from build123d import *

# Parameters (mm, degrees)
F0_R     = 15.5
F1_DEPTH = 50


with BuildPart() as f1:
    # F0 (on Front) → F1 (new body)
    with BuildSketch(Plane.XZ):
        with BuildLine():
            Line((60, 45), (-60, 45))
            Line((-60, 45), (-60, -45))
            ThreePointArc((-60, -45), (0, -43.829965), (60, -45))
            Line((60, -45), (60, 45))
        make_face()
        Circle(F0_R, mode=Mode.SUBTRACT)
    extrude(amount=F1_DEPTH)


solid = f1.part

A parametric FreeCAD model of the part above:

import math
import FreeCAD as App
import Part
import Sketcher
from FreeCAD import Vector
Q = App.Units.Quantity

doc = App.newDocument("Part")
params = doc.addObject("Spreadsheet::Sheet", "Params")
for row, (alias, value) in enumerate([
    ("sketch1_diameter", "31 mm"),
    ("sketch1_width", "120 mm"),
    ("sketch1_height", "90 mm"),
    ("pad1_length", "50 mm"),
], start=1):
    params.set(f"A{row}", alias)
    params.set(f"B{row}", "=" + value)
    params.setAlias(f"B{row}", alias)

body = doc.addObject("PartDesign::Body", "Body")

sketch1 = body.newObject("Sketcher::SketchObject", "Sketch")
sketch1.AttachmentSupport = (doc.getObject("XZ_Plane"), [""])
sketch1.MapMode = "FlatFace"
sketch1.addGeometry(Part.LineSegment(Vector(60, 45, 0), Vector(-60, 45, 0)), False)
sketch1.addGeometry(Part.LineSegment(Vector(-60, 45, 0), Vector(-60, -45, 0)), False)
sketch1.addGeometry(Part.ArcOfCircle(Part.Circle(Vector(0, -1582.8305, 0), Vector(0, 0, 1), 1539.000535), math.radians(87.765681), math.radians(92.234319)), False)
sketch1.addGeometry(Part.LineSegment(Vector(60, -45, 0), Vector(60, 45, 0)), False)
sketch1.addGeometry(Part.Circle(Vector(0, 0, 0), Vector(0, 0, 1), 15.5), False)
sketch1.addConstraint(Sketcher.Constraint("Coincident", 0, 2, 1, 1))
sketch1.addConstraint(Sketcher.Constraint("Coincident", 1, 2, 2, 2))
sketch1.addConstraint(Sketcher.Constraint("Coincident", 2, 1, 3, 1))
sketch1.addConstraint(Sketcher.Constraint("Coincident", 3, 2, 0, 1))
sketch1.addConstraint(Sketcher.Constraint("Horizontal", 0))
sketch1.addConstraint(Sketcher.Constraint("Vertical", 1))
sketch1.addConstraint(Sketcher.Constraint("Vertical", 3))
sketch1.addConstraint(Sketcher.Constraint("Coincident", 4, 3, -1, 1))
sketch1.addConstraint(Sketcher.Constraint("Symmetric", 1, 2, 3, 2, -1, 1))
sketch1.addConstraint(Sketcher.Constraint("PointOnObject", 2, 3, -2))
sketch1.addConstraint(Sketcher.Constraint("Diameter", 4, Q("31 mm")))
sketch1.addConstraint(Sketcher.Constraint("DistanceX", 0, 2, 0, 1, Q("120 mm")))
sketch1.addConstraint(Sketcher.Constraint("DistanceY", 1, 2, 1, 1, Q("90 mm")))
sketch1.addConstraint(Sketcher.Constraint("Radius", 2, Q("1539.000535 mm")))
sketch1.setExpression("Constraints[10]", "Params.sketch1_diameter")
sketch1.setExpression("Constraints[11]", "Params.sketch1_width")
sketch1.setExpression("Constraints[12]", "Params.sketch1_height")
pad1 = body.newObject("PartDesign::Pad", "Pad")
pad1.Profile = sketch1
pad1.setExpression("Length", "Params.pad1_length")

doc.recompute()
